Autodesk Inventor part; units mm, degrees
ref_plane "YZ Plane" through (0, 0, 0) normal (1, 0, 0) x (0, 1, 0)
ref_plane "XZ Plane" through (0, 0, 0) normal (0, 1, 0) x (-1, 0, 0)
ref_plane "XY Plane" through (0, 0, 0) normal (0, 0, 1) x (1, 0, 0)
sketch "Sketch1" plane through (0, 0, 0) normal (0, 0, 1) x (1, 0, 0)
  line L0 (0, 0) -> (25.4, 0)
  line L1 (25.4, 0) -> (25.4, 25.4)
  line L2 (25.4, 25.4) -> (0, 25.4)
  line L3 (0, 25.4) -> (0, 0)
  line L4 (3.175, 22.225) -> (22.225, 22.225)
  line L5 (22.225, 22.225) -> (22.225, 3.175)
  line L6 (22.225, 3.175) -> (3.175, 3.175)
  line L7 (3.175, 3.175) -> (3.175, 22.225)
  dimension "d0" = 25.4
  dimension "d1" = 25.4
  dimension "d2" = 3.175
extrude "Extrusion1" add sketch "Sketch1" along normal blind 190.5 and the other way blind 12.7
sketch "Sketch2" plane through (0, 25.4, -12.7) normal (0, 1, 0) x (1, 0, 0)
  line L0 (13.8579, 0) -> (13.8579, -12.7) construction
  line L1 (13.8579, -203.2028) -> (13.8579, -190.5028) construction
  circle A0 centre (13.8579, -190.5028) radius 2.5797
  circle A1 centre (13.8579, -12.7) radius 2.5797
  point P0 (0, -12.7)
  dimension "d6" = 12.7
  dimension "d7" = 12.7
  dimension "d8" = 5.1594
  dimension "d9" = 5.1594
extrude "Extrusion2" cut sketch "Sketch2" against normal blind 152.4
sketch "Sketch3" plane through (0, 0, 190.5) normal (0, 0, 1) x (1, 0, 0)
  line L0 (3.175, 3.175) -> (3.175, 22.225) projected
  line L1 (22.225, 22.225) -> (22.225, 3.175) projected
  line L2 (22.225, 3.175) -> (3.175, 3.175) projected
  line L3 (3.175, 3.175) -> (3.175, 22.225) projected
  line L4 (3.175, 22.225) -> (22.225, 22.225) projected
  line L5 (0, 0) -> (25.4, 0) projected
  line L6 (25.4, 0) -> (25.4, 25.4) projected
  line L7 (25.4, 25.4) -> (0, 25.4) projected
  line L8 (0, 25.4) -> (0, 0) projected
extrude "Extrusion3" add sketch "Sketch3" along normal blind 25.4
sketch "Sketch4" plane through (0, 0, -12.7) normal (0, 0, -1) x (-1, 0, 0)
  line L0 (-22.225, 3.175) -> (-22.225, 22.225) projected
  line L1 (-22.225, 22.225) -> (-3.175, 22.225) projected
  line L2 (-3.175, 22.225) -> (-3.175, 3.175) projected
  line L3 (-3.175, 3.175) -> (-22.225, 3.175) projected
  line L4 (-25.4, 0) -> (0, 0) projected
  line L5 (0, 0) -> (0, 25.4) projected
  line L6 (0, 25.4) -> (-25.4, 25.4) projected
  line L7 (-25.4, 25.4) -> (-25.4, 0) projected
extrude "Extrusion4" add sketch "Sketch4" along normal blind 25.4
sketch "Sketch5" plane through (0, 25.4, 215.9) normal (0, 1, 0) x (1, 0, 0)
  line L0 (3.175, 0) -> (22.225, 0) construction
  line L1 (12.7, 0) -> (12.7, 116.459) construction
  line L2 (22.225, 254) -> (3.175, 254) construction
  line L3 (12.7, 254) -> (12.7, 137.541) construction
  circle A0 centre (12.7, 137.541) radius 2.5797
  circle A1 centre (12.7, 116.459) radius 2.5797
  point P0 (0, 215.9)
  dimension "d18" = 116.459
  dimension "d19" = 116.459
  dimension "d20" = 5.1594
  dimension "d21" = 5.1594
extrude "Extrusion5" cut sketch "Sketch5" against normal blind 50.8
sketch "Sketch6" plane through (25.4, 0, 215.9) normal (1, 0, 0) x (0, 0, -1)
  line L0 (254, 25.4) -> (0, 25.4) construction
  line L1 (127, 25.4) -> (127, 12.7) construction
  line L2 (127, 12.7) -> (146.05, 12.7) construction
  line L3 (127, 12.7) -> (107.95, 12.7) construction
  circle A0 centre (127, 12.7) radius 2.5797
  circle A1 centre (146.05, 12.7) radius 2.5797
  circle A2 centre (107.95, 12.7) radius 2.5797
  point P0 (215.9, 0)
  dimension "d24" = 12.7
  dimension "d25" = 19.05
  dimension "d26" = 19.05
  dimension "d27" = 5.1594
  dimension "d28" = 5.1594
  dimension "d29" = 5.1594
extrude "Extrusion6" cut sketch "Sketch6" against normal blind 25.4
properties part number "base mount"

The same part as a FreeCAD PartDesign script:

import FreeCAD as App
import Part
import Sketcher
Q = App.Units.Quantity


def add_polygon(sketch, points):
    """Adds a closed chain of lines whose ends are joined by coincident constraints."""
    first, n = sketch.GeometryCount, len(points)
    for a, b in zip(points, points[1:] + points[:1]):
        sketch.addGeometry(Part.LineSegment(App.Vector(*a, 0), App.Vector(*b, 0)), False)
    for i in range(n):
        sketch.addConstraint(Sketcher.Constraint("Coincident", first + i, 2, first + (i + 1) % n, 1))

doc = App.newDocument("Part")
params = doc.addObject("Spreadsheet::Sheet", "Params")
for row, (alias, value) in enumerate([
    ("sketch1_width", "1 in"),
    ("pad1_length", "7.5 in"),
    ("pad1_length2", "0.5 in"),
    ("sketch2_diameter", "0.203126 in"),
    ("pocket1_length", "6 in"),
    ("sketch3_width", "1 in"),
    ("sketch3_width2", "0.75 in"),
    ("pad2_length", "1 in"),
    ("sketch4_width", "1 in"),
    ("sketch4_width2", "0.75 in"),
    ("pad3_length", "1 in"),
    ("sketch5_diameter", "0.203126 in"),
    ("pocket2_length", "2 in"),
    ("sketch6_diameter", "0.203126 in"),
    ("pocket3_length", "1 in"),
], start=1):
    params.set(f"A{row}", alias)
    params.set(f"B{row}", "=" + value)
    params.setAlias(f"B{row}", alias)

body = doc.addObject("PartDesign::Body", "Body")

sketch1 = body.newObject("Sketcher::SketchObject", "Sketch")
sketch1.AttachmentSupport = (doc.getObject("XY_Plane"), [""])
sketch1.MapMode = "FlatFace"
add_polygon(sketch1, [(0, 25), (0, 0), (25, 0), (25, 25)])
add_polygon(sketch1, [(3, 3), (3, 22), (22, 22), (22, 3)])
sketch1.addConstraint([
    Sketcher.Constraint("Vertical", 0),
    Sketcher.Constraint("Horizontal", 1),
    Sketcher.Constraint("Vertical", 2),
    Sketcher.Constraint("Horizontal", 3),
    Sketcher.Constraint("Vertical", 4),
    Sketcher.Constraint("Horizontal", 5),
    Sketcher.Constraint("Vertical", 6),
    Sketcher.Constraint("Horizontal", 7),
    Sketcher.Constraint("Coincident", 0, 2, -1, 1),
    Sketcher.Constraint("Equal", 3, 0),
    Sketcher.Constraint("Equal", 7, 4),
    Sketcher.Constraint("DistanceX", 1, 1, 1, 2, Q("1 in")),
    Sketcher.Constraint("DistanceX", -1, 1, 4, 2, Q("0.125 in")),
    Sketcher.Constraint("DistanceY", -1, 1, 6, 2, Q("0.125 in")),
    Sketcher.Constraint("DistanceY", 4, 2, 3, 2, Q("0.125 in")),
])
sketch1.setExpression("Constraints[19]", "Params.sketch1_width")
pad1 = body.newObject("PartDesign::Pad", "Pad")
pad1.Profile = sketch1
pad1.Type = "TwoLengths"
pad1.setExpression("Length", "Params.pad1_length")
pad1.setExpression("Length2", "Params.pad1_length2")

sketch2 = body.newObject("Sketcher::SketchObject", "Sketch001")
sketch2.AttachmentSupport = (doc.getObject("XZ_Plane"), [""])
sketch2.MapMode = "FlatFace"
sketch2.AttachmentOffset = App.Placement(App.Vector(0, 0, -1 * 25.4), App.Rotation())
sketch2.addGeometry([
    Part.Circle(App.Vector(13.9, 177.8, 0), App.Vector(0, 0, 1), 2.6),
    Part.Circle(App.Vector(13.9, 0, 0), App.Vector(0, 0, 1), 2.6),
], False)
sketch2.addConstraint([
    Sketcher.Constraint("Equal", 0, 1),
    Sketcher.Constraint("PointOnObject", 1, 3, -1),
    Sketcher.Constraint("Vertical", 0, 3, 1, 3),
    Sketcher.Constraint("Diameter", 0, Q("0.203126 in")),
    Sketcher.Constraint("DistanceY", -1, 1, 0, 3, Q("7.0001 in")),
    Sketcher.Constraint("DistanceX", -1, 1, 0, 3, Q("0.5455906 in")),
])
sketch2.setExpression("Constraints[3]", "Params.sketch2_diameter")
pocket1 = body.newObject("PartDesign::Pocket", "Pocket")
pocket1.Profile = sketch2
pocket1.setExpression("Length", "Params.pocket1_length")
pocket1.Reversed = True

sketch3 = body.newObject("Sketcher::SketchObject", "Sketch002")
sketch3.AttachmentSupport = (doc.getObject("XY_Plane"), [""])
sketch3.MapMode = "FlatFace"
sketch3.AttachmentOffset = App.Placement(App.Vector(0, 0, 7.5 * 25.4), App.Rotation())
add_polygon(sketch3, [(0, 25), (0, 0), (25, 0), (25, 25)])
add_polygon(sketch3, [(22, 3), (3, 3), (3, 22), (22, 22)])
sketch3.addConstraint([
    Sketcher.Constraint("Vertical", 0),
    Sketcher.Constraint("Horizontal", 1),
    Sketcher.Constraint("Vertical", 2),
    Sketcher.Constraint("Horizontal", 3),
    Sketcher.Constraint("Horizontal", 4),
    Sketcher.Constraint("Vertical", 5),
    Sketcher.Constraint("Horizontal", 6),
    Sketcher.Constraint("Vertical", 7),
    Sketcher.Constraint("Coincident", 0, 2, -1, 1),
    Sketcher.Constraint("Equal", 3, 0),
    Sketcher.Constraint("Equal", 6, 5),
    Sketcher.Constraint("DistanceX", 1, 1, 1, 2, Q("1 in")),
    Sketcher.Constraint("DistanceX", 4, 2, 4, 1, Q("0.75 in")),
    Sketcher.Constraint("DistanceX", -1, 1, 4, 2, Q("0.125 in")),
    Sketcher.Constraint("DistanceY", -1, 1, 4, 2, Q("0.125 in")),
])
sketch3.setExpression("Constraints[19]", "Params.sketch3_width")
sketch3.setExpression("Constraints[20]", "Params.sketch3_width2")
pad2 = body.newObject("PartDesign::Pad", "Pad001")
pad2.Profile = sketch3
pad2.setExpression("Length", "Params.pad2_length")

sketch4 = body.newObject("Sketcher::SketchObject", "Sketch003")
sketch4.AttachmentSupport = (doc.getObject("XY_Plane"), [""])
sketch4.MapMode = "FlatFace"
sketch4.AttachmentOffset = App.Placement(App.Vector(0, 0, -0.5 * 25.4), App.Rotation())
add_polygon(sketch4, [(25, 25), (25, 0), (0, 0), (0, 25)])
add_polygon(sketch4, [(3, 3), (22, 3), (22, 22), (3, 22)])
sketch4.addConstraint([
    Sketcher.Constraint("Vertical", 0),
    Sketcher.Constraint("Horizontal", 1),
    Sketcher.Constraint("Vertical", 2),
    Sketcher.Constraint("Horizontal", 3),
    Sketcher.Constraint("Horizontal", 4),
    Sketcher.Constraint("Vertical", 5),
    Sketcher.Constraint("Horizontal", 6),
    Sketcher.Constraint("Vertical", 7),
    Sketcher.Constraint("Coincident", 1, 2, -1, 1),
    Sketcher.Constraint("Equal", 3, 0),
    Sketcher.Constraint("Equal", 6, 5),
    Sketcher.Constraint("DistanceX", 1, 2, 1, 1, Q("1 in")),
    Sketcher.Constraint("DistanceX", 4, 1, 4, 2, Q("0.75 in")),
    Sketcher.Constraint("DistanceX", -1, 1, 4, 2, Q("0.875 in")),
    Sketcher.Constraint("DistanceY", -1, 1, 4, 2, Q("0.125 in")),
])
sketch4.setExpression("Constraints[19]", "Params.sketch4_width")
sketch4.setExpression("Constraints[20]", "Params.sketch4_width2")
pad3 = body.newObject("PartDesign::Pad", "Pad002")
pad3.Profile = sketch4
pad3.setExpression("Length", "Params.pad3_length")
pad3.Reversed = True

sketch5 = body.newObject("Sketcher::SketchObject", "Sketch004")
sketch5.AttachmentSupport = (doc.getObject("XZ_Plane"), [""])
sketch5.MapMode = "FlatFace"
sketch5.AttachmentOffset = App.Placement(App.Vector(0, 0, -1 * 25.4), App.Rotation())
sketch5.addGeometry([
    Part.Circle(App.Vector(12.7, 78.4, 0), App.Vector(0, 0, 1), 2.6),
    Part.Circle(App.Vector(12.7, 99.4, 0), App.Vector(0, 0, 1), 2.6),
], False)
sketch5.addConstraint([
    Sketcher.Constraint("Equal", 0, 1),
    Sketcher.Constraint("Vertical", 0, 3, 1, 3),
    Sketcher.Constraint("Diameter", 0, Q("0.203126 in")),
    Sketcher.Constraint("DistanceX", -1, 1, 0, 3, Q("0.5 in")),
    Sketcher.Constraint("DistanceY", 0, 3, 1, 3, Q("0.83 in")),
    Sketcher.Constraint("DistanceY", -1, 1, 0, 3, Q("3.085 in")),
])
sketch5.setExpression("Constraints[2]", "Params.sketch5_diameter")
pocket2 = body.newObject("PartDesign::Pocket", "Pocket001")
pocket2.Profile = sketch5
pocket2.setExpression("Length", "Params.pocket2_length")
pocket2.Reversed = True

sketch6 = body.newObject("Sketcher::SketchObject", "Sketch005")
sketch6.AttachmentSupport = (doc.getObject("YZ_Plane"), [""])
sketch6.MapMode = "FlatFace"
sketch6.AttachmentOffset = App.Placement(App.Vector(0, 0, 1 * 25.4), App.Rotation())
sketch6.addGeometry([
    Part.Circle(App.Vector(12.7, 88.9, 0), App.Vector(0, 0, 1), 2.6),
    Part.Circle(App.Vector(12.7, 69.8, 0), App.Vector(0, 0, 1), 2.6),
    Part.Circle(App.Vector(12.7, 108, 0), App.Vector(0, 0, 1), 2.6),
], False)
sketch6.addConstraint([
    Sketcher.Constraint("Equal", 0, 1),
    Sketcher.Constraint("Equal", 1, 2),
    Sketcher.Constraint("Vertical", 0, 3, 1, 3),
    Sketcher.Constraint("Vertical", 1, 3, 2, 3),
    Sketcher.Constraint("Diameter", 0, Q("0.203126 in")),
    Sketcher.Constraint("DistanceX", -1, 1, 0, 3, Q("0.5 in")),
    Sketcher.Constraint("DistanceY", 1, 3, 0, 3, Q("0.75 in")),
    Sketcher.Constraint("DistanceY", 0, 3, 2, 3, Q("0.75 in")),
    Sketcher.Constraint("DistanceY", -1, 1, 0, 3, Q("3.5 in")),
])
sketch6.setExpression("Constraints[4]", "Params.sketch6_diameter")
pocket3 = body.newObject("PartDesign::Pocket", "Pocket002")
pocket3.Profile = sketch6
pocket3.setExpression("Length", "Params.pocket3_length")

doc.recompute()
